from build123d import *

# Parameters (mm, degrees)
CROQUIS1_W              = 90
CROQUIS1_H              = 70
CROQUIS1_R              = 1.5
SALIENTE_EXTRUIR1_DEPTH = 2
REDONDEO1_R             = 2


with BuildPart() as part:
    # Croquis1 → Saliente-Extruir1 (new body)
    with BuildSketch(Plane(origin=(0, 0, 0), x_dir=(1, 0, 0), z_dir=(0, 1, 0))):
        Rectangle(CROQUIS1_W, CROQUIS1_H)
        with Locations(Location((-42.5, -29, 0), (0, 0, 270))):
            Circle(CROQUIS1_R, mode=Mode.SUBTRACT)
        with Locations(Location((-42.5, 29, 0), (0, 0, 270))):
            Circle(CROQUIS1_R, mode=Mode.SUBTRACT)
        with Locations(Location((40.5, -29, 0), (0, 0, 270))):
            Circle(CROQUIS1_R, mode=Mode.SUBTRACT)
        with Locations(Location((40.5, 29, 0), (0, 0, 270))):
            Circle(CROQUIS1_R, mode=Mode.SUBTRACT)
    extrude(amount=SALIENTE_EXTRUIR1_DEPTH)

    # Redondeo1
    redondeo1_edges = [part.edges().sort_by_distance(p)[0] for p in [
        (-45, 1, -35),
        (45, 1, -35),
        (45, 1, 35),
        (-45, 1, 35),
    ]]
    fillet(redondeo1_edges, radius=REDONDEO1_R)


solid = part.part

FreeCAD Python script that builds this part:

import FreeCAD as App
import Part
import Sketcher
from FreeCAD import Vector
Q = App.Units.Quantity


def edges_at(feature, points):
    """Names of the edges that pass closest to the given points."""
    edges = feature.Shape.Edges
    near = lambda p: min(range(len(edges)), key=lambda i: edges[i].distToShape(Part.Vertex(*p))[0])
    return sorted({f"Edge{near(p) + 1}" for p in points})

doc = App.newDocument("Part")
body = doc.addObject("PartDesign::Body", "Body")

# Sketch on XZ plane
sketch1 = doc.addObject("Sketcher::SketchObject", "Sketch")
body.addObject(sketch1)
sketch1.AttachmentSupport = (doc.XZ_Plane, [""])
sketch1.MapMode = "FlatFace"
sketch1.addGeometry([
    Part.LineSegment(Vector(-45, -35, 0), Vector(-45, 35, 0)),  # 0
    Part.LineSegment(Vector(-45, 35, 0), Vector(45, 35, 0)),  # 1
    Part.LineSegment(Vector(45, 35, 0), Vector(45, -35, 0)),  # 2
    Part.LineSegment(Vector(45, -35, 0), Vector(-45, -35, 0)),  # 3
    Part.Circle(Vector(-42.5, 29, 0), Vector(0, 0, 1), 1.5),  # 4
    Part.Circle(Vector(40.5, 29, 0), Vector(0, 0, 1), 1.5),  # 5
    Part.Circle(Vector(-42.5, -29, 0), Vector(0, 0, 1), 1.5),  # 6
    Part.Circle(Vector(40.5, -29, 0), Vector(0, 0, 1), 1.5),  # 7
], False)
sketch1.addConstraint([
    Sketcher.Constraint("Coincident", 0, 2, 1, 1),
    Sketcher.Constraint("Coincident", 1, 2, 2, 1),
    Sketcher.Constraint("Coincident", 2, 2, 3, 1),
    Sketcher.Constraint("Coincident", 3, 2, 0, 1),
    Sketcher.Constraint("Vertical", 0),
    Sketcher.Constraint("Horizontal", 1),
    Sketcher.Constraint("Vertical", 2),
    Sketcher.Constraint("Horizontal", 3),
    Sketcher.Constraint("Equal", 4, 5),
    Sketcher.Constraint("Equal", 5, 6),
    Sketcher.Constraint("Equal", 6, 7),
    Sketcher.Constraint("Symmetric", 0, 2, 2, 2, -1, 1),
    Sketcher.Constraint("Symmetric", 4, 3, 6, 3, -1),
    Sketcher.Constraint("Symmetric", 5, 3, 7, 3, -1),
    Sketcher.Constraint("Horizontal", 4, 3, 5, 3),
    Sketcher.Constraint("Diameter", 4, Q("3 mm")),
    Sketcher.Constraint("DistanceX", 1, 1, 1, 2, Q("90 mm")),
    Sketcher.Constraint("DistanceY", 0, 1, 0, 2, Q("70 mm")),
    Sketcher.Constraint("DistanceY", -1, 1, 4, 3, Q("29 mm")),
    Sketcher.Constraint("DistanceX", 4, 3, 5, 3, Q("83 mm")),
    Sketcher.Constraint("DistanceX", 4, 3, -1, 1, Q("42.5 mm")),
])
pad1 = doc.addObject("PartDesign::Pad", "Pad")
body.addObject(pad1)
pad1.Profile = sketch1
pad1.Length = 2
pad1.Reversed = True
doc.recompute()

fillet = doc.addObject("PartDesign::Fillet", "Fillet")
body.addObject(fillet)
fillet.Base = (pad1, edges_at(pad1, [
    (-45, 1, -35),
    (45, 1, -35),
    (45, 1, 35),
    (-45, 1, 35),
]))
fillet.Radius = 2

doc.recompute()
